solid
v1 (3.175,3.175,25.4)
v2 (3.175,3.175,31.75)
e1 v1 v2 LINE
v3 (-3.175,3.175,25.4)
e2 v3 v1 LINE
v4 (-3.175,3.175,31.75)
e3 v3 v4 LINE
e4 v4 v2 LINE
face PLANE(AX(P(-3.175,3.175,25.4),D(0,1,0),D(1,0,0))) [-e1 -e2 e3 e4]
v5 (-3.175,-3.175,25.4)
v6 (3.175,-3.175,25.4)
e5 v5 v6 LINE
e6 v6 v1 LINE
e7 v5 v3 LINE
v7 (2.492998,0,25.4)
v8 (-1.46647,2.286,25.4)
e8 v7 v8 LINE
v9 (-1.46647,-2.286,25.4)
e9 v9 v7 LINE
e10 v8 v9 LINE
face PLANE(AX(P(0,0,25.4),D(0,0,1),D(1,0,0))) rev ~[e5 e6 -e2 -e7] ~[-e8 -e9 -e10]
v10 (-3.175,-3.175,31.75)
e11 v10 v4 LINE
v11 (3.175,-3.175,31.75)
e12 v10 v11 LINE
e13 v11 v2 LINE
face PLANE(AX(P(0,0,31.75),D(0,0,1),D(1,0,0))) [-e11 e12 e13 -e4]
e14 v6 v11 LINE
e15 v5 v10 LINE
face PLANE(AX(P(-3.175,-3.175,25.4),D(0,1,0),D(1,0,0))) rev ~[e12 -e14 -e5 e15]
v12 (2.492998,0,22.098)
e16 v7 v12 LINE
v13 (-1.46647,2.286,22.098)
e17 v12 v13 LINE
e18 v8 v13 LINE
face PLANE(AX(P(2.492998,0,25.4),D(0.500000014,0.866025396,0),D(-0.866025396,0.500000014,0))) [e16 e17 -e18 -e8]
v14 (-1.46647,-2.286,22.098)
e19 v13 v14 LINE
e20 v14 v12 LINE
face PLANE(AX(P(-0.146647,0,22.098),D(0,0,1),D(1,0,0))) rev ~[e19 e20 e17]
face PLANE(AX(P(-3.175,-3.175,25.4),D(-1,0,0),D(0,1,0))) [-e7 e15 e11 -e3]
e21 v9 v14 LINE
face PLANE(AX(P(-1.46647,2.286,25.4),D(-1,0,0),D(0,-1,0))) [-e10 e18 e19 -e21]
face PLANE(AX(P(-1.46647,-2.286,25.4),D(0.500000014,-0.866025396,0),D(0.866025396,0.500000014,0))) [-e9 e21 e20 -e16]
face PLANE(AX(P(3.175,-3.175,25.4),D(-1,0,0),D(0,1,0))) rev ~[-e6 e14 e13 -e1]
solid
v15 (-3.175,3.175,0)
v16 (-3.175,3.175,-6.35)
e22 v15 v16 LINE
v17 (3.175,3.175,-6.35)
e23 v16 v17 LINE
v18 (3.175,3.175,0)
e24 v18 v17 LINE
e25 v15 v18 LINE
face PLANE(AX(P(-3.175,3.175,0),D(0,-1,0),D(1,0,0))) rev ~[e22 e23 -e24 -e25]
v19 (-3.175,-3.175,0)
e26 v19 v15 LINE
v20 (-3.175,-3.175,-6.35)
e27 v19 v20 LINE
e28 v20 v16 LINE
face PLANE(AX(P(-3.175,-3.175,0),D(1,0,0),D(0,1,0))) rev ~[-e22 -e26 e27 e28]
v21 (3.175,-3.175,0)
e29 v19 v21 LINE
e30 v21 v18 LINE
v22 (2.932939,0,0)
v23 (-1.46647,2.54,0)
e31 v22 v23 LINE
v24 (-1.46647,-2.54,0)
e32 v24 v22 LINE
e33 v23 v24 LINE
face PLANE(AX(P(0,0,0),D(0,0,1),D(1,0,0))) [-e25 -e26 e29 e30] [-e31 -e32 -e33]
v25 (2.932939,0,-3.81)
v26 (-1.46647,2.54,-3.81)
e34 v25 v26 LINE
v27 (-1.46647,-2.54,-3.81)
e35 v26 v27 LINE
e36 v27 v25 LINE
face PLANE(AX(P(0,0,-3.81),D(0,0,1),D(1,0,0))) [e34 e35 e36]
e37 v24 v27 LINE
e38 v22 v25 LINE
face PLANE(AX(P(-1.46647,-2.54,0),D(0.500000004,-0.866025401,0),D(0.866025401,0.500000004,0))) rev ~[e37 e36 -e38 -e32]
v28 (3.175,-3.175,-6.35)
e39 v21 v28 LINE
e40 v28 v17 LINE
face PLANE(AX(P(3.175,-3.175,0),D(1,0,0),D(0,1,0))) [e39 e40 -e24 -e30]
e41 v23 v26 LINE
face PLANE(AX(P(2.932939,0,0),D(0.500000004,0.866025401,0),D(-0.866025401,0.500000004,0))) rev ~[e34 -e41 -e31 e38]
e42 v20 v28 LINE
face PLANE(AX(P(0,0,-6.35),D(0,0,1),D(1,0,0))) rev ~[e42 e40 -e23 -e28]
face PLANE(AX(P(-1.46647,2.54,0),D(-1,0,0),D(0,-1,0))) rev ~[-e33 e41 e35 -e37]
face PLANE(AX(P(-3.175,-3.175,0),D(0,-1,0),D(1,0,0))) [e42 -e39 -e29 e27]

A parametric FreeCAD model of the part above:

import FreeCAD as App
import Part
import Sketcher

V = App.Vector
Q = App.Units.Quantity


def add_polygon(sketch, points):
    """Adds a closed chain of lines whose ends are joined by coincident constraints."""
    first, n = sketch.GeometryCount, len(points)
    for a, b in zip(points, points[1:] + points[:1]):
        sketch.addGeometry(Part.LineSegment(App.Vector(*a, 0), App.Vector(*b, 0)), False)
    for i in range(n):
        sketch.addConstraint(Sketcher.Constraint("Coincident", first + i, 2, first + (i + 1) % n, 1))

doc = App.newDocument("Part")
params = doc.addObject("Spreadsheet::Sheet", "Params")
for row, (alias, value) in enumerate([
    ("sketch1_width", "0.25 in"),
    ("pad1_length", "0.25 in"),
    ("sketch2_height", "0.2 in"),
    ("pocket1_length", "0.15 in"),
    ("sketch3_width", "0.25 in"),
    ("pad2_length", "0.25 in"),
    ("sketch4_height", "0.18 in"),
    ("pad3_length", "0.13 in"),
], start=1):
    params.set(f"A{row}", alias)
    params.set(f"B{row}", "=" + value)
    params.setAlias(f"B{row}", alias)

body = doc.addObject("PartDesign::Body", "Body")

# Sketch on XY plane
sketch1 = body.newObject("Sketcher::SketchObject", "Sketch")
sketch1.AttachmentSupport = (doc.getObject("XY_Plane"), [""])
sketch1.MapMode = "FlatFace"
add_polygon(sketch1, [(-3, 3), (-3, -3), (3, -3), (3, 3)])  # lines 0-3
sketch1.addConstraint([
    Sketcher.Constraint("Vertical", 0),
    Sketcher.Constraint("Horizontal", 1),
    Sketcher.Constraint("Vertical", 2),
    Sketcher.Constraint("Horizontal", 3),
    Sketcher.Constraint("Symmetric", 0, 2, 2, 2, -1, 1),
    Sketcher.Constraint("Equal", 3, 0),
    Sketcher.Constraint("DistanceX", 1, 1, 1, 2, Q("0.25 in")),
])
sketch1.setExpression("Constraints[10]", "Params.sketch1_width")
pad1 = body.newObject("PartDesign::Pad", "Pad")
pad1.Profile = sketch1
pad1.setExpression("Length", "Params.pad1_length")
pad1.Reversed = True

# Sketch on XY plane
sketch2 = body.newObject("Sketcher::SketchObject", "Sketch001")
sketch2.AttachmentSupport = (doc.getObject("XY_Plane"), [""])
sketch2.MapMode = "FlatFace"
add_polygon(sketch2, [(-1, 3), (-1, -3), (3, 0)])  # lines 0-2
sketch2.addConstraint([
    Sketcher.Constraint("Vertical", 0),
    Sketcher.Constraint("PointOnObject", 1, 2, -1),
    Sketcher.Constraint("Equal", 1, 2),
    Sketcher.Constraint("DistanceY", 0, 2, 0, 1, Q("0.2 in")),
    Sketcher.Constraint("Angle", 1, Q("30 deg")),
    Sketcher.Constraint("DistanceX", 0, 2, -1, 1, 1.46647),
])
sketch2.setExpression("Constraints[6]", "Params.sketch2_height")
pocket1 = body.newObject("PartDesign::Pocket", "Pocket")
pocket1.Profile = sketch2
pocket1.setExpression("Length", "Params.pocket1_length")
body2 = doc.addObject("PartDesign::Body", "Body001")

# Sketch on XY plane
sketch3 = body2.newObject("Sketcher::SketchObject", "Sketch002")
sketch3.AttachmentSupport = (doc.getObject("XY_Plane001"), [""])
sketch3.MapMode = "FlatFace"
sketch3.AttachmentOffset = App.Placement(V(0, 0, 1 * 25.4), App.Rotation())
add_polygon(sketch3, [(-3, 3), (-3, -3), (3, -3), (3, 3)])  # lines 0-3
sketch3.addConstraint([
    Sketcher.Constraint("Vertical", 0),
    Sketcher.Constraint("Horizontal", 1),
    Sketcher.Constraint("Vertical", 2),
    Sketcher.Constraint("Horizontal", 3),
    Sketcher.Constraint("Symmetric", 0, 2, 2, 2, -1, 1),
    Sketcher.Constraint("Equal", 3, 0),
    Sketcher.Constraint("DistanceX", 1, 1, 1, 2, Q("0.25 in")),
])
sketch3.setExpression("Constraints[10]", "Params.sketch3_width")
pad2 = body2.newObject("PartDesign::Pad", "Pad001")
pad2.Profile = sketch3
pad2.setExpression("Length", "Params.pad2_length")

# Sketch on XY plane
sketch4 = body2.newObject("Sketcher::SketchObject", "Sketch003")
sketch4.AttachmentSupport = (doc.getObject("XY_Plane001"), [""])
sketch4.MapMode = "FlatFace"
sketch4.AttachmentOffset = App.Placement(V(0, 0, 1 * 25.4), App.Rotation())
add_polygon(sketch4, [(-1.5, 2.3), (-1.5, -2.3), (2.5, 0)])  # lines 0-2
sketch4.addConstraint([
    Sketcher.Constraint("Vertical", 0),
    Sketcher.Constraint("PointOnObject", 1, 2, -1),
    Sketcher.Constraint("Equal", 1, 2),
    Sketcher.Constraint("Angle", 1, Q("30.000001 deg")),
    Sketcher.Constraint("DistanceY", 0, 2, 0, 1, Q("0.18 in")),
    Sketcher.Constraint("DistanceX", -1, 1, 1, 2, 2.492998),
])
sketch4.setExpression("Constraints[7]", "Params.sketch4_height")
pad3 = body2.newObject("PartDesign::Pad", "Pad002")
pad3.Profile = sketch4
pad3.setExpression("Length", "Params.pad3_length")
pad3.Reversed = True

doc.recompute()
